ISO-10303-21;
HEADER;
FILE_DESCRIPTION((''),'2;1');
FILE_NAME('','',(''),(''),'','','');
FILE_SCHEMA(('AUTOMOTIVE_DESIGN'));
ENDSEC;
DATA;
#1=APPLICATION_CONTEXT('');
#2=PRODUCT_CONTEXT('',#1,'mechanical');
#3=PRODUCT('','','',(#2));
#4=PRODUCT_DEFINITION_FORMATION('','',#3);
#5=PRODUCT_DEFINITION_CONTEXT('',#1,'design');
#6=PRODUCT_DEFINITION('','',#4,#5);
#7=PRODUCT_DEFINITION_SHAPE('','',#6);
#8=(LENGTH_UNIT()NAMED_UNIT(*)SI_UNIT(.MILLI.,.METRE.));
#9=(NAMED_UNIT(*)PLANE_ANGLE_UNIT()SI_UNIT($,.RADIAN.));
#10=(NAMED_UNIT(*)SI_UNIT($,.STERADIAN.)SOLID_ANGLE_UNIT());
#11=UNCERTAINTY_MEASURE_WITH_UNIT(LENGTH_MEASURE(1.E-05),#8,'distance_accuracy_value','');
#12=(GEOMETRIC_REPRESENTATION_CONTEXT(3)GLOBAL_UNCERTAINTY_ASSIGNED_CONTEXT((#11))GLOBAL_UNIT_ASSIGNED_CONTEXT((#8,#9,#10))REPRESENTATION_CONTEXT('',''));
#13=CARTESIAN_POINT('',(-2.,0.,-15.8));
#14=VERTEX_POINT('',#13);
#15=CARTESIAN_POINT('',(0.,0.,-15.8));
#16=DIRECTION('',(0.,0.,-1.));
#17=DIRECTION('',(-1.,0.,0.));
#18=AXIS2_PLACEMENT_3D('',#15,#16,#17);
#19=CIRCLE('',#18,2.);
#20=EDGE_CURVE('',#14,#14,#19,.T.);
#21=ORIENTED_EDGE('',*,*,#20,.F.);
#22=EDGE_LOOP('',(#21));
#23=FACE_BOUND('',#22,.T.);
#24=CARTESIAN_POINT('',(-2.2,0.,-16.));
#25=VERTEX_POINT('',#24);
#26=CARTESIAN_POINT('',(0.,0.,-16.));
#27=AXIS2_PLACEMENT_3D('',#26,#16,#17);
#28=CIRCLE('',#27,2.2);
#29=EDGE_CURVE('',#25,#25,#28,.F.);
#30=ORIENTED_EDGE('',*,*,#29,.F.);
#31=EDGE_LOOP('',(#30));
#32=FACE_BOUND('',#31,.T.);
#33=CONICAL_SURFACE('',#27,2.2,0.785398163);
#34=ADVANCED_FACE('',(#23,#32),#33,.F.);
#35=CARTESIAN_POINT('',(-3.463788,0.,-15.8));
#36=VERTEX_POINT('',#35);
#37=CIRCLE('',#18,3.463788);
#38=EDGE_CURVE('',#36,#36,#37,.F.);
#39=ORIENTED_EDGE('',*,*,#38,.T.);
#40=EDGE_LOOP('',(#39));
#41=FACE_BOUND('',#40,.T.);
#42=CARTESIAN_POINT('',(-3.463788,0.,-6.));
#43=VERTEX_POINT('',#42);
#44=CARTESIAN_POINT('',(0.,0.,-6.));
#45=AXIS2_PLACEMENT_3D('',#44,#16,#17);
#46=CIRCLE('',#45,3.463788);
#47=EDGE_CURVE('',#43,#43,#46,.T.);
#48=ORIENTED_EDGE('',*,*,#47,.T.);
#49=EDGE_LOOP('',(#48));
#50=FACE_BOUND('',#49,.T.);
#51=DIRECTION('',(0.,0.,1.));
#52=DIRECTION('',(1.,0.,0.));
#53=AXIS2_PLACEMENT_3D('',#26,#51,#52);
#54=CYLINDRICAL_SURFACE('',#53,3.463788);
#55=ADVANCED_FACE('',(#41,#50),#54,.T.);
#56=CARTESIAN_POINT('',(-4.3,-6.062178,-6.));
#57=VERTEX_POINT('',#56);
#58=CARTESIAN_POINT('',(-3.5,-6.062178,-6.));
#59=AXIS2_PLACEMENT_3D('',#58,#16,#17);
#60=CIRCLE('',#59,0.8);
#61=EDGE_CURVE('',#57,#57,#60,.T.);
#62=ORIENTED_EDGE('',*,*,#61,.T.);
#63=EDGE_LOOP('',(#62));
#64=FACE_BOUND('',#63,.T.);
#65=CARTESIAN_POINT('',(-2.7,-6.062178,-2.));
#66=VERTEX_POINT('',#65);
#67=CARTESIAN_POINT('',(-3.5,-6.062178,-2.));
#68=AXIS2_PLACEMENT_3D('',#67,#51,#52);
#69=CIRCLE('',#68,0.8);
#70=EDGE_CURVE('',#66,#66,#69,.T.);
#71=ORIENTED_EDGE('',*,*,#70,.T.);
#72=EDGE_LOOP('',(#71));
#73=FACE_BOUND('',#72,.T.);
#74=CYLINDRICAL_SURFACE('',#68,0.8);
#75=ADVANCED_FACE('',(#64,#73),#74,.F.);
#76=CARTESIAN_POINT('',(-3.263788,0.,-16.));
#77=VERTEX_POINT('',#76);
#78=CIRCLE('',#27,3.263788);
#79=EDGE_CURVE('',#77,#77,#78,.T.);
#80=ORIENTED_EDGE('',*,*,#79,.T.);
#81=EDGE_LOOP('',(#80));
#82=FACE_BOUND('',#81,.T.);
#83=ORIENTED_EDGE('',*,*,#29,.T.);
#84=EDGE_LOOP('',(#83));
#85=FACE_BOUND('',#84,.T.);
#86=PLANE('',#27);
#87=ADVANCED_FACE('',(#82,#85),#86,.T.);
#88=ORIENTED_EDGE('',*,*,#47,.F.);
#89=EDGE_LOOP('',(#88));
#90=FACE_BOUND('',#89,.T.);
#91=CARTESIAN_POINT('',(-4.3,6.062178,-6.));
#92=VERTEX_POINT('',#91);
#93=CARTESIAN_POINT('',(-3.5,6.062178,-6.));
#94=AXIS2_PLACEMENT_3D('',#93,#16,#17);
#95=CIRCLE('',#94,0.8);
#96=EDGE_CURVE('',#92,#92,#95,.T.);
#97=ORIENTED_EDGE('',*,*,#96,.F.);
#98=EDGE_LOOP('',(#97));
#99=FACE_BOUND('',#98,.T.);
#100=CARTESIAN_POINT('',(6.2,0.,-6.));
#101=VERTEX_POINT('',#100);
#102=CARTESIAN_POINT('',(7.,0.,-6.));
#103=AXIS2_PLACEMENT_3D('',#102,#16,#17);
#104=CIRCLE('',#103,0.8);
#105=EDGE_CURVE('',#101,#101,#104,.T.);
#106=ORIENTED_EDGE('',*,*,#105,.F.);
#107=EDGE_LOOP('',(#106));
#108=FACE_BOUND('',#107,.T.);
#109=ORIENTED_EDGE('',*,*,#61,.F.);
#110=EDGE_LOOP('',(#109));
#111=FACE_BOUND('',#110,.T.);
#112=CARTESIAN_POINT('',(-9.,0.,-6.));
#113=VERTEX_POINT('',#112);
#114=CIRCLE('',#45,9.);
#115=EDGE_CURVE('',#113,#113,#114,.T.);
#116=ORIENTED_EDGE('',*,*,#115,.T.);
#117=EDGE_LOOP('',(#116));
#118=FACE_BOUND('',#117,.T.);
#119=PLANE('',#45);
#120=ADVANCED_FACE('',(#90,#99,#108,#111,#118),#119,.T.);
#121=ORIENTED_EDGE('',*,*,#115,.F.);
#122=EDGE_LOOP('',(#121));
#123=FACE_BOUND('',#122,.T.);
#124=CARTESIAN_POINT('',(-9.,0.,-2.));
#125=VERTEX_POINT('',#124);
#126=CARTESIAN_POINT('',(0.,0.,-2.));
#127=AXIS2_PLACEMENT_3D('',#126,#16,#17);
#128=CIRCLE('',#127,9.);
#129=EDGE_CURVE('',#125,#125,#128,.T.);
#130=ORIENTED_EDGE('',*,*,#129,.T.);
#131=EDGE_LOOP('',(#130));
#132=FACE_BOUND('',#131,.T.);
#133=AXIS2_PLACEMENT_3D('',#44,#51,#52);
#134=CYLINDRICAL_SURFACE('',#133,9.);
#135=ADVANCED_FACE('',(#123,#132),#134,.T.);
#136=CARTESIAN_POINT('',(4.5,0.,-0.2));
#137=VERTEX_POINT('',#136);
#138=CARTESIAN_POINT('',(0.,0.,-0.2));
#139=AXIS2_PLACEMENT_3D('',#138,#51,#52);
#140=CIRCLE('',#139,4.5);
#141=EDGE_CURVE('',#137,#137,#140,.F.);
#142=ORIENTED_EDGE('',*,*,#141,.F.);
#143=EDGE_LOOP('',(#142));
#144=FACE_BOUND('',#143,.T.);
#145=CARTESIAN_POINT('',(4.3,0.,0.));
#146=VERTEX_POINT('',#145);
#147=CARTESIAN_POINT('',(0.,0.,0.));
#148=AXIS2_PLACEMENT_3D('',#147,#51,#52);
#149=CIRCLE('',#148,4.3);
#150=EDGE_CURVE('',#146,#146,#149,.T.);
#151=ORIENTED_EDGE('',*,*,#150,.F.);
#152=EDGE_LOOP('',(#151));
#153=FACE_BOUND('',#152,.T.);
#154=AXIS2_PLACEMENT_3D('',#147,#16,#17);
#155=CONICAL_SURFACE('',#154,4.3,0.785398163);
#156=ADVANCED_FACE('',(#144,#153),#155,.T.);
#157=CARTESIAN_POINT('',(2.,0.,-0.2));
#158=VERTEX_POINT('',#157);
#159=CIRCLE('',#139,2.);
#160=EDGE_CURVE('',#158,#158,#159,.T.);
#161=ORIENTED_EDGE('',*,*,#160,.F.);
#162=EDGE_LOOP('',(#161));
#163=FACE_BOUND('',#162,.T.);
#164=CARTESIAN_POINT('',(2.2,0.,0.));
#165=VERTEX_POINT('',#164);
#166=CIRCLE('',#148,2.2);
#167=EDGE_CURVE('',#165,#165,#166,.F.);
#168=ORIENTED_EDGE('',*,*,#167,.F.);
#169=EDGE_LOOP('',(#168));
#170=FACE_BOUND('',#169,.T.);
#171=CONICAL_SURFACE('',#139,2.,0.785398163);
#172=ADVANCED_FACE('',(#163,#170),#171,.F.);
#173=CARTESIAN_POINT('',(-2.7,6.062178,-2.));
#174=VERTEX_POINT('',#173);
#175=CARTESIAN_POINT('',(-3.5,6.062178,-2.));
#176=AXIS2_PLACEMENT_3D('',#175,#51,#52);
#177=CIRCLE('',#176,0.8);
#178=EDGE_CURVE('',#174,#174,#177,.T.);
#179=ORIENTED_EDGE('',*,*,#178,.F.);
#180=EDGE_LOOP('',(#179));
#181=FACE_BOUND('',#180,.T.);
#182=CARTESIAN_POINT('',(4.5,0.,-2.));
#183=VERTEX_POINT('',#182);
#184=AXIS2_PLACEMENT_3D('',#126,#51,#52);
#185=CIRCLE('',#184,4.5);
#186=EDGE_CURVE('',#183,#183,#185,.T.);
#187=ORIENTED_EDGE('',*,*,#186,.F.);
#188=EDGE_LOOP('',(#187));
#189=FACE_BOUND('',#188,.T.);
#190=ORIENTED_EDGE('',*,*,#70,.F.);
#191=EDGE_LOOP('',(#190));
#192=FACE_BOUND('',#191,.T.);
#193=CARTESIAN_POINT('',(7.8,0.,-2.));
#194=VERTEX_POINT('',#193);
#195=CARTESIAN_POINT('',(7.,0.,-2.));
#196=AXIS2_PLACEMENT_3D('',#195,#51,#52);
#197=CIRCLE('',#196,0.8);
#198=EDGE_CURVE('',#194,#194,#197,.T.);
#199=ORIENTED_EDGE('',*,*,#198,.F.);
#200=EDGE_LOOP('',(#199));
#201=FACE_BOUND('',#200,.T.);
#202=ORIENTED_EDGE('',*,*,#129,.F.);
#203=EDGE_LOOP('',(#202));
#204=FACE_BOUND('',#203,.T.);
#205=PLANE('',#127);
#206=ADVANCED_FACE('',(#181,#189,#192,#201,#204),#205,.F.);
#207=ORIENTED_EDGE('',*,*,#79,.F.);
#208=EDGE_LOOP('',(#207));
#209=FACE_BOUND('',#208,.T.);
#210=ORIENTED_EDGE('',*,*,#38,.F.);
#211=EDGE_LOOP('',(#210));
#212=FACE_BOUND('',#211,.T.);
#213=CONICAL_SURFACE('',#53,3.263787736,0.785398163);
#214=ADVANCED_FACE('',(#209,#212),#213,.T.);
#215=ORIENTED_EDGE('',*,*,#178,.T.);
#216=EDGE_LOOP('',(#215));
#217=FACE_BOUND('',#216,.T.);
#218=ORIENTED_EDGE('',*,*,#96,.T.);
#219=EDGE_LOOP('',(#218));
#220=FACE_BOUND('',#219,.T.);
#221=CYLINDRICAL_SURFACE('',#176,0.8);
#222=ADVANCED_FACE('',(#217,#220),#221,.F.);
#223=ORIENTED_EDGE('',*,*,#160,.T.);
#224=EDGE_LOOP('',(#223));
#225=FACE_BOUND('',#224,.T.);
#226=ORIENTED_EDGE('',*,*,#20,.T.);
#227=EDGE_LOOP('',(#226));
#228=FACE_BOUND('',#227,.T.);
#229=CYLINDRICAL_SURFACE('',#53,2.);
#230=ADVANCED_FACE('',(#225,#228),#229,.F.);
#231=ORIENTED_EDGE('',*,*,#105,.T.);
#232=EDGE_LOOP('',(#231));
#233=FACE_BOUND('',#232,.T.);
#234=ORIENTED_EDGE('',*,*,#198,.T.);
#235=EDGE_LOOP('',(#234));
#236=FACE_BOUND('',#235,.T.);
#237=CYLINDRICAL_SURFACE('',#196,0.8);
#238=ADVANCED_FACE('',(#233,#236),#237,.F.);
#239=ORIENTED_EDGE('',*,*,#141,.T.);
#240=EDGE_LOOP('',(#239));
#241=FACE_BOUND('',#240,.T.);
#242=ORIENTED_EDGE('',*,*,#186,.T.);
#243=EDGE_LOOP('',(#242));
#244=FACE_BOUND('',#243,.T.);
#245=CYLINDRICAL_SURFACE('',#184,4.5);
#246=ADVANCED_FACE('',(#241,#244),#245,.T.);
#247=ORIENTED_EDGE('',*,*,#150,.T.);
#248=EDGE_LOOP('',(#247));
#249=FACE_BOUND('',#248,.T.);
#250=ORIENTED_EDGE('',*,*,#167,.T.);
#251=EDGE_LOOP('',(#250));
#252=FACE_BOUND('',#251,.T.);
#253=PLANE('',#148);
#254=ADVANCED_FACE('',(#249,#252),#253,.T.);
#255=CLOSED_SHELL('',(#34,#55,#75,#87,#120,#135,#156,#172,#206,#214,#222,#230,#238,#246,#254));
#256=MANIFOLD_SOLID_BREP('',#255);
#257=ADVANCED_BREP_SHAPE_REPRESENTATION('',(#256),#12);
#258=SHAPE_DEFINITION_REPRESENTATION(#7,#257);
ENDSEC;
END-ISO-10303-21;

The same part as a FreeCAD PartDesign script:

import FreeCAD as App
import Part
import Sketcher

V = App.Vector


def edges_at(feature, points):
    """Names of the edges that pass closest to the given points."""
    edges = feature.Shape.Edges
    near = lambda p: min(range(len(edges)), key=lambda i: edges[i].distToShape(Part.Vertex(*p))[0])
    return sorted({f"Edge{near(p) + 1}" for p in points})

doc = App.newDocument("Part")
body = doc.addObject("PartDesign::Body", "Body")

# Sketch on XY plane
sketch1 = body.newObject("Sketcher::SketchObject", "Sketch")
sketch1.AttachmentSupport = (doc.getObject("XY_Plane"), [""])
sketch1.MapMode = "FlatFace"
sketch1.addGeometry(Part.Circle(V(0, 0, 0), V(0, 0, 1), 4.5), False)
sketch1.addConstraint([
    Sketcher.Constraint("Coincident", 0, 3, -1, 1),
    Sketcher.Constraint("Diameter", 0, 9.0),
])
pad1 = body.newObject("PartDesign::Pad", "Pad")
pad1.Profile = sketch1
pad1.Length = 2
pad1.Reversed = True

# Sketch on XY plane
sketch2 = body.newObject("Sketcher::SketchObject", "Sketch001")
sketch2.AttachmentSupport = (doc.getObject("XY_Plane"), [""])
sketch2.MapMode = "FlatFace"
sketch2.AttachmentOffset = App.Placement(V(0, 0, -2), App.Rotation())
sketch2.addGeometry(Part.Circle(V(0, 0, 0), V(0, 0, 1), 9), False)
sketch2.addConstraint([
    Sketcher.Constraint("Coincident", 0, 3, -1, 1),
    Sketcher.Constraint("Diameter", 0, 18.0),
])
pad2 = body.newObject("PartDesign::Pad", "Pad001")
pad2.Profile = sketch2
pad2.Length = 4
pad2.Reversed = True

# Sketch on XY plane
sketch3 = body.newObject("Sketcher::SketchObject", "Sketch002")
sketch3.AttachmentSupport = (doc.getObject("XY_Plane"), [""])
sketch3.MapMode = "FlatFace"
sketch3.AttachmentOffset = App.Placement(V(0, 0, -6), App.Rotation())
sketch3.addGeometry(Part.Circle(V(0, 0, 0), V(0, 0, 1), 3.5), False)
sketch3.addConstraint([
    Sketcher.Constraint("Coincident", 0, 3, -1, 1),
    Sketcher.Constraint("Diameter", 0, 6.927575),
])
pad3 = body.newObject("PartDesign::Pad", "Pad002")
pad3.Profile = sketch3
pad3.Length = 10
pad3.Reversed = True

# Sketch on XY plane
sketch4 = body.newObject("Sketcher::SketchObject", "Sketch003")
sketch4.AttachmentSupport = (doc.getObject("XY_Plane"), [""])
sketch4.MapMode = "FlatFace"
sketch4.AttachmentOffset = App.Placement(V(0, 0, -2), App.Rotation())
sketch4.addGeometry([
    Part.Circle(V(-3.5, 6.1, 0), V(0, 0, 1), 0.8),
    Part.Circle(V(-3.5, -6.1, 0), V(0, 0, 1), 0.8),
    Part.Circle(V(7, 0, 0), V(0, 0, 1), 0.8),
], False)
sketch4.addConstraint([
    Sketcher.Constraint("Equal", 0, 1),
    Sketcher.Constraint("Equal", 1, 2),
    Sketcher.Constraint("Symmetric", 0, 3, 1, 3, -1),
    Sketcher.Constraint("PointOnObject", 2, 3, -1),
    Sketcher.Constraint("Diameter", 0, 1.6),
    Sketcher.Constraint("DistanceX", -1, 1, 2, 3, 7.0),
    Sketcher.Constraint("DistanceX", 0, 3, -1, 1, 3.5),
    Sketcher.Constraint("DistanceY", -1, 1, 0, 3, 6.062178),
])
doc.recompute()
hole = body.newObject("PartDesign::Hole", "Hole")
hole.Profile = sketch4
hole.ThreadType = "None"
hole.Diameter = 1.6
hole.DepthType = "ThroughAll"

# Sketch on XY plane
sketch5 = body.newObject("Sketcher::SketchObject", "Sketch004")
sketch5.AttachmentSupport = (doc.getObject("XY_Plane"), [""])
sketch5.MapMode = "FlatFace"
sketch5.addGeometry(Part.Circle(V(0, 0, 0), V(0, 0, 1), 2), False)
sketch5.addConstraint([
    Sketcher.Constraint("Coincident", 0, 3, -1, 1),
    Sketcher.Constraint("Diameter", 0, 4.0),
])
pocket1 = body.newObject("PartDesign::Pocket", "Pocket")
pocket1.Profile = sketch5
pocket1.Type = "ThroughAll"
doc.recompute()

chamfer = body.newObject("PartDesign::Chamfer", "Chamfer")
chamfer.Base = (pocket1, edges_at(pocket1, [
    (3.464, 0, -16),
    (-4.5, 0, 0),
    (-2, 0, -16),
    (-2, 0, 0),
]))
chamfer.Size = 0.2

doc.recompute()
